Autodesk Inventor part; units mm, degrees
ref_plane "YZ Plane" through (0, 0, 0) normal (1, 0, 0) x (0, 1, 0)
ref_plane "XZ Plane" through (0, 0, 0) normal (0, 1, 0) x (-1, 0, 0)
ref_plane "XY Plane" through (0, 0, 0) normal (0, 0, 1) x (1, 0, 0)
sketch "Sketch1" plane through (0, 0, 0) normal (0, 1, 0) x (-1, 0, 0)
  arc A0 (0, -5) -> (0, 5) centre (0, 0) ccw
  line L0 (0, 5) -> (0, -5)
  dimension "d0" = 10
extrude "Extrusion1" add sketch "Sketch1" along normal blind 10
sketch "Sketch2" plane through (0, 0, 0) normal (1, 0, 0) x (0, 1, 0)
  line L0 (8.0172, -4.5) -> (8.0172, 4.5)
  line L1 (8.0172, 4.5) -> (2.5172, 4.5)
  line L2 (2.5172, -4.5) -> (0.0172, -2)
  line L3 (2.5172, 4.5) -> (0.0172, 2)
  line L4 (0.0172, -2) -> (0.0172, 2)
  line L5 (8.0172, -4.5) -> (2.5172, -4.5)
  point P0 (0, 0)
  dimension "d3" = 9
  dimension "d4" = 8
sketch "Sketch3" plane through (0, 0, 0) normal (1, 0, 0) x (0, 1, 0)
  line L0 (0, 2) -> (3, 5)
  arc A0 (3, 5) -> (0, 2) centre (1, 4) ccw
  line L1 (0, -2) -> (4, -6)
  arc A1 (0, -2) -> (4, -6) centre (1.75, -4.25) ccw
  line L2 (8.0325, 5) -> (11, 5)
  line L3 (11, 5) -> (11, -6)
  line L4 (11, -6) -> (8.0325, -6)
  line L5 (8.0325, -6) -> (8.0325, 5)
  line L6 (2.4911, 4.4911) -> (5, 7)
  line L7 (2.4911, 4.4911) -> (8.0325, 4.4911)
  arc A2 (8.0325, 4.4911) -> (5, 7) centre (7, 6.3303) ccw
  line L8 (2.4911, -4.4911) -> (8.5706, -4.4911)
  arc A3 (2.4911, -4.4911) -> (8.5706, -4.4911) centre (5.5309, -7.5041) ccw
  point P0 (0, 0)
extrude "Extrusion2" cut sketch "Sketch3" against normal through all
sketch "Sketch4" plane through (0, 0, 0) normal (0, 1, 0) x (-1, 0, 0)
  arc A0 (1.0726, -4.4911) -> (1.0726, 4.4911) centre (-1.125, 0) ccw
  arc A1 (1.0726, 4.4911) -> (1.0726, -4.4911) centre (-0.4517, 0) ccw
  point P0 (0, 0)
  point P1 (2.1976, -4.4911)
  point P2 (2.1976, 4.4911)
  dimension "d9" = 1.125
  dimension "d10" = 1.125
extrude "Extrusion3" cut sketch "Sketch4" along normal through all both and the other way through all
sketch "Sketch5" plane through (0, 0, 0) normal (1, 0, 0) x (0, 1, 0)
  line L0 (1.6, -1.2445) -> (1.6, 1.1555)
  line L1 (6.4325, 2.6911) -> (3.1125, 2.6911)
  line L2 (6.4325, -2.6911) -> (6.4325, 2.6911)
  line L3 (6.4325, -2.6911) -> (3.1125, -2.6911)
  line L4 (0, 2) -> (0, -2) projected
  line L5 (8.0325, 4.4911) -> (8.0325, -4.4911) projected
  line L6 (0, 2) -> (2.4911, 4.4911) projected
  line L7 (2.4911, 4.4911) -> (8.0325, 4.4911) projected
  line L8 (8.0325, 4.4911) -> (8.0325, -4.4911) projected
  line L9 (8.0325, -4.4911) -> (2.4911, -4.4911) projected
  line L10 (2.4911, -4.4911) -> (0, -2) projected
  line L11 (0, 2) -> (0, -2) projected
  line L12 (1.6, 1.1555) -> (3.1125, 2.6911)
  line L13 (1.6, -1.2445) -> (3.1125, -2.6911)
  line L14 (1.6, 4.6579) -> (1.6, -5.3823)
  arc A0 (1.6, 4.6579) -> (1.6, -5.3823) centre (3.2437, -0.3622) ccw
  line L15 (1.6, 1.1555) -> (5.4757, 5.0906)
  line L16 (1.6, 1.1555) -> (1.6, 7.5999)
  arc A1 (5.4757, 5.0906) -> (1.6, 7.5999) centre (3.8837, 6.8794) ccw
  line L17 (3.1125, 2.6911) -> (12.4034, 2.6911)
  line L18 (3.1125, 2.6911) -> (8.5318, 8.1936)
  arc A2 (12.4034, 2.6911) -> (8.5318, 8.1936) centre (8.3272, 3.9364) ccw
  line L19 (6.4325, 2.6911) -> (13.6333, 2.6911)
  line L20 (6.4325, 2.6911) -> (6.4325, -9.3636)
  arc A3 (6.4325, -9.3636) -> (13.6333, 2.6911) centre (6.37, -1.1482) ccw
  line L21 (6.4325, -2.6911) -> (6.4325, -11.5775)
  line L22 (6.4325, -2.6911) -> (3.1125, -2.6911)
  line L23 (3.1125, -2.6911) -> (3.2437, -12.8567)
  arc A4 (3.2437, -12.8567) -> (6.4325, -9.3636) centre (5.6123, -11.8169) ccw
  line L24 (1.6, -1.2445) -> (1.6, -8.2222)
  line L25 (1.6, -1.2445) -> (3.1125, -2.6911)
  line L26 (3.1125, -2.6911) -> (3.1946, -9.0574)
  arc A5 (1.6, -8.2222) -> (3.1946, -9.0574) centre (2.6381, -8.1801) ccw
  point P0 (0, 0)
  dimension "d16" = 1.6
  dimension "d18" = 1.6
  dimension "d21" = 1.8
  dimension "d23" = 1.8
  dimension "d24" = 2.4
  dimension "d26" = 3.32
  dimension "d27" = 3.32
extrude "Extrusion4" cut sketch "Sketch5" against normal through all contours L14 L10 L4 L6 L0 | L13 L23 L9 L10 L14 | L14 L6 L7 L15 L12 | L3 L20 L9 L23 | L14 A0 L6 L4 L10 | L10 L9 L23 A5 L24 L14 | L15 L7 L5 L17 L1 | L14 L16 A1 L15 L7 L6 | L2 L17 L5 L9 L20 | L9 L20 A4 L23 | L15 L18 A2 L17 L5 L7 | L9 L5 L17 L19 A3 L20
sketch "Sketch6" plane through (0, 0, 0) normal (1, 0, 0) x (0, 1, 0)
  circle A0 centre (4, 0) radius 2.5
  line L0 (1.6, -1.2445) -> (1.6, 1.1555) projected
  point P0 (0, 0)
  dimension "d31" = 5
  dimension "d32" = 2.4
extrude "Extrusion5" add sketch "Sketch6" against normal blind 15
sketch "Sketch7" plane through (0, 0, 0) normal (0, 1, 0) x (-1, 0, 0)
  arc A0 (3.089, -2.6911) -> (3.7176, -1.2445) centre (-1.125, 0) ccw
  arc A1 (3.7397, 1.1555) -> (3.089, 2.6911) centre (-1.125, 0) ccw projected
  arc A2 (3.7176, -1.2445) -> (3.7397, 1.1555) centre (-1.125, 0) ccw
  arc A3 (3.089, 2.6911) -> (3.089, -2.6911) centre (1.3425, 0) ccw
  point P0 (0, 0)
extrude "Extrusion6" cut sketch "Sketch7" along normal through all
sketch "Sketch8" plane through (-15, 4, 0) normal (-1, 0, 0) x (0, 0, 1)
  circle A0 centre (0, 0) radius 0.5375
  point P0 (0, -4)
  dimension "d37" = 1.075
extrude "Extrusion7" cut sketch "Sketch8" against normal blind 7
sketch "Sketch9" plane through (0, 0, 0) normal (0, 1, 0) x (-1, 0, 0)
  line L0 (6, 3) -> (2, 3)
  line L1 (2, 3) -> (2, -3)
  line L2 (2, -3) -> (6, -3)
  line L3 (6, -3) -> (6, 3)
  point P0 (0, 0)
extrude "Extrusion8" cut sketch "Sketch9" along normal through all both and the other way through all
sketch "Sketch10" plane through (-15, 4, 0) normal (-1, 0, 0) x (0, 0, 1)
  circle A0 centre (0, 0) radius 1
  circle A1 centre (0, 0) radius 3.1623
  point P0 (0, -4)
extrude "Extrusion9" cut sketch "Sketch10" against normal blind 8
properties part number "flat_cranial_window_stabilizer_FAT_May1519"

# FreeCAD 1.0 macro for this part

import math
import FreeCAD as App
import Part
import Sketcher

V = App.Vector
Q = App.Units.Quantity

doc = App.newDocument("Part")
body = doc.addObject("PartDesign::Body", "Body")

# Sketch on XZ plane
sketch1 = body.newObject("Sketcher::SketchObject", "Sketch")
sketch1.AttachmentSupport = (doc.getObject("XZ_Plane"), [""])
sketch1.MapMode = "FlatFace"
sketch1.addGeometry(Part.LineSegment(V(0, 5, 0), V(0, -5, 0)), False)
sketch1.addGeometry(Part.ArcOfCircle(Part.Circle(V(0, 0, 0), V(0, 0, 1), 5), math.radians(90), math.radians(270)), False)
sketch1.addConstraint(Sketcher.Constraint("Coincident", 0, 1, 1, 1))
sketch1.addConstraint(Sketcher.Constraint("Coincident", 1, 2, 0, 2))
sketch1.addConstraint(Sketcher.Constraint("Vertical", 0))
sketch1.addConstraint(Sketcher.Constraint("Coincident", 1, 3, -1, 1))
sketch1.addConstraint(Sketcher.Constraint("PointOnObject", 0, 1, -2))
sketch1.addConstraint(Sketcher.Constraint("Radius", 1, Q("5 mm")))
pad1 = body.newObject("PartDesign::Pad", "Pad")
pad1.Profile = sketch1
pad1.Length = 10
pad1.Reversed = True

# Sketch on YZ plane
sketch2 = body.newObject("Sketcher::SketchObject", "Sketch001")
sketch2.AttachmentSupport = (doc.getObject("YZ_Plane"), [""])
sketch2.MapMode = "FlatFace"
sketch2.addGeometry(Part.ArcOfCircle(Part.Circle(V(1, 4, 0), V(0, 0, 1), 2.2), math.radians(27), math.radians(243)), False)
sketch2.addGeometry(Part.LineSegment(V(0, 2, 0), V(2.5, 4.5, 0)), False)
sketch2.addGeometry(Part.LineSegment(V(2.5, 4.5, 0), V(8, 4.5, 0)), False)
sketch2.addGeometry(Part.LineSegment(V(8, 4.5, 0), V(8, -4.5, 0)), False)
sketch2.addGeometry(Part.LineSegment(V(8, -4.5, 0), V(2.5, -4.5, 0)), False)
sketch2.addGeometry(Part.LineSegment(V(2.5, -4.5, 0), V(0, -2, 0)), False)
sketch2.addGeometry(Part.ArcOfCircle(Part.Circle(V(1.8, -4.2, 0), V(0, 0, 1), 2.9), math.radians(128), math.radians(260)), False)
sketch2.addGeometry(Part.ArcOfCircle(Part.Circle(V(5.5, -7.5, 0), V(0, 0, 1), 4.3), math.radians(174), math.radians(381)), False)
sketch2.addGeometry(Part.LineSegment(V(9.5, -6, 0), V(11, -6, 0)), False)
sketch2.addGeometry(Part.LineSegment(V(11, -6, 0), V(11, 5, 0)), False)
sketch2.addGeometry(Part.LineSegment(V(11, 5, 0), V(8.6, 5, 0)), False)
sketch2.addGeometry(Part.ArcOfCircle(Part.Circle(V(7, 6.3, 0), V(0, 0, 1), 2.1), math.radians(-39), math.radians(161)), False)
sketch2.addGeometry(Part.LineSegment(V(5, 7, 0), V(3, 5, 0)), False)
sketch2.addConstraint(Sketcher.Constraint("Coincident", 0, 2, 1, 1))
sketch2.addConstraint(Sketcher.Constraint("Coincident", 1, 2, 2, 1))
sketch2.addConstraint(Sketcher.Constraint("Coincident", 2, 2, 3, 1))
sketch2.addConstraint(Sketcher.Constraint("Coincident", 3, 2, 4, 1))
sketch2.addConstraint(Sketcher.Constraint("Coincident", 4, 2, 5, 1))
sketch2.addConstraint(Sketcher.Constraint("Coincident", 5, 2, 6, 1))
sketch2.addConstraint(Sketcher.Constraint("Coincident", 6, 2, 7, 1))
sketch2.addConstraint(Sketcher.Constraint("Coincident", 7, 2, 8, 1))
sketch2.addConstraint(Sketcher.Constraint("Coincident", 8, 2, 9, 1))
sketch2.addConstraint(Sketcher.Constraint("Coincident", 9, 2, 10, 1))
sketch2.addConstraint(Sketcher.Constraint("Coincident", 10, 2, 11, 1))
sketch2.addConstraint(Sketcher.Constraint("Coincident", 11, 2, 12, 1))
sketch2.addConstraint(Sketcher.Constraint("Coincident", 12, 2, 0, 1))
sketch2.addConstraint(Sketcher.Constraint("Horizontal", 2))
sketch2.addConstraint(Sketcher.Constraint("Vertical", 3))
sketch2.addConstraint(Sketcher.Constraint("Horizontal", 4))
sketch2.addConstraint(Sketcher.Constraint("Horizontal", 8))
sketch2.addConstraint(Sketcher.Constraint("Vertical", 9))
sketch2.addConstraint(Sketcher.Constraint("Horizontal", 10))
sketch2.addConstraint(Sketcher.Constraint("Symmetric", 0, 2, 5, 2, -1, 1))
sketch2.addConstraint(Sketcher.Constraint("Symmetric", 1, 2, 4, 2, -1))
sketch2.addConstraint(Sketcher.Constraint("PointOnObject", 0, 2, -2))
sketch2.addConstraint(Sketcher.Constraint("Perpendicular", 1, 5))
sketch2.addConstraint(Sketcher.Constraint("Perpendicular", 5, 12))
sketch2.addConstraint(Sketcher.Constraint("Horizontal", 10, 2, 12, 2))
sketch2.addConstraint(Sketcher.Constraint("DistanceY", 9, 1, 9, 2, Q("11 mm")))
sketch2.addConstraint(Sketcher.Constraint("Radius", 7, Q("4.28 mm")))
sketch2.addConstraint(Sketcher.Constraint("DistanceX", -1, 1, 0, 3, Q("1 mm")))
sketch2.addConstraint(Sketcher.Constraint("DistanceY", -1, 1, 0, 3, Q("4 mm")))
sketch2.addConstraint(Sketcher.Constraint("DistanceX", -1, 1, 11, 3, Q("7 mm")))
sketch2.addConstraint(Sketcher.Constraint("DistanceY", -1, 1, 0, 2, Q("2 mm")))
sketch2.addConstraint(Sketcher.Constraint("DistanceY", 7, 2, -1, 1, Q("6 mm")))
sketch2.addConstraint(Sketcher.Constraint("DistanceX", -1, 1, 8, 2, Q("11 mm")))
sketch2.addConstraint(Sketcher.Constraint("DistanceX", -1, 1, 11, 2, Q("5 mm")))
sketch2.addConstraint(Sketcher.Constraint("Radius", 6, Q("2.8504 mm")))
sketch2.addConstraint(Sketcher.Constraint("Radius", 11, Q("2.1092 mm")))
sketch2.addConstraint(Sketcher.Constraint("DistanceX", -1, 1, 6, 3, Q("1.75 mm")))
sketch2.addConstraint(Sketcher.Constraint("Distance", 1, Q("3.523 mm")))
sketch2.addConstraint(Sketcher.Constraint("DistanceX", 2, 1, 2, 2, Q("5.5414 mm")))
sketch2.addConstraint(Sketcher.Constraint("DistanceX", 8, 1, 8, 2, Q("1.4622 mm")))
sketch2.addConstraint(Sketcher.Constraint("DistanceX", -1, 1, 7, 3, Q("5.531 mm")))
pocket1 = body.newObject("PartDesign::Pocket", "Pocket")
pocket1.Profile = sketch2
pocket1.Type = "ThroughAll"

# Sketch on XZ plane
sketch3 = body.newObject("Sketcher::SketchObject", "Sketch002")
sketch3.AttachmentSupport = (doc.getObject("XZ_Plane"), [""])
sketch3.MapMode = "FlatFace"
sketch3.addGeometry(Part.ArcOfCircle(Part.Circle(V(0.5, 0, 0), V(0, 0, 1), 4.7), math.radians(-109), math.radians(109)), False)
sketch3.addGeometry(Part.ArcOfCircle(Part.Circle(V(1.1, 0, 0), V(0, 0, 1), 5), math.radians(116), math.radians(244)), False)
sketch3.addConstraint(Sketcher.Constraint("Coincident", 0, 1, 1, 2))
sketch3.addConstraint(Sketcher.Constraint("Coincident", 1, 1, 0, 2))
sketch3.addConstraint(Sketcher.Constraint("Symmetric", 0, 1, 1, 1, -1))
sketch3.addConstraint(Sketcher.Constraint("Radius", 1, Q("5 mm")))
sketch3.addConstraint(Sketcher.Constraint("DistanceX", -1, 1, 1, 3, Q("1.125 mm")))
sketch3.addConstraint(Sketcher.Constraint("Radius", 0, Q("4.7427 mm")))
sketch3.addConstraint(Sketcher.Constraint("DistanceY", 0, 1, -1, 1, Q("4.491 mm")))
pocket2 = body.newObject("PartDesign::Pocket", "Pocket001")
pocket2.Profile = sketch3
pocket2.Type = "ThroughAll"

# Sketch on YZ plane
sketch4 = body.newObject("Sketcher::SketchObject", "Sketch003")
sketch4.AttachmentSupport = (doc.getObject("YZ_Plane"), [""])
sketch4.MapMode = "FlatFace"
sketch4.addGeometry(Part.ArcOfCircle(Part.Circle(V(3.2, -0.4, 0), V(0, 0, 1), 5.3), math.radians(108), math.radians(252)), False)
sketch4.addGeometry(Part.LineSegment(V(1.6, -5.4, 0), V(1.6, -8.2, 0)), False)
sketch4.addGeometry(Part.ArcOfCircle(Part.Circle(V(2.6, -8.2, 0), V(0, 0, 1), 1), math.radians(-178), math.radians(-58)), False)
sketch4.addGeometry(Part.LineSegment(V(3.2, -9.1, 0), V(3.2, -12.9, 0)), False)
sketch4.addGeometry(Part.ArcOfCircle(Part.Circle(V(5.6, -11.8, 0), V(0, 0, 1), 2.6), math.radians(-156), math.radians(72)), False)
sketch4.addGeometry(Part.ArcOfCircle(Part.Circle(V(6.4, -1.1, 0), V(0, 0, 1), 8.2), math.radians(-90), math.radians(28)), False)
sketch4.addGeometry(Part.LineSegment(V(13.6, 2.7, 0), V(12.4, 2.7, 0)), False)
sketch4.addGeometry(Part.ArcOfCircle(Part.Circle(V(8.3, 3.9, 0), V(0, 0, 1), 4.3), math.radians(-17), math.radians(87)), False)
sketch4.addGeometry(Part.LineSegment(V(8.5, 8.2, 0), V(5.5, 5.1, 0)), False)
sketch4.addGeometry(Part.ArcOfCircle(Part.Circle(V(3.9, 6.9, 0), V(0, 0, 1), 2.4), math.radians(-48), math.radians(162)), False)
sketch4.addGeometry(Part.LineSegment(V(1.6, 7.6, 0), V(1.6, 4.7, 0)), False)
sketch4.addGeometry(Part.LineSegment(V(1.6, -1.2, 0), V(1.6, 1.2, 0)), False)
sketch4.addGeometry(Part.LineSegment(V(1.6, 1.2, 0), V(3.1, 2.7, 0)), False)
sketch4.addGeometry(Part.LineSegment(V(3.1, 2.7, 0), V(6.4, 2.7, 0)), False)
sketch4.addGeometry(Part.LineSegment(V(6.4, 2.7, 0), V(6.4, -2.7, 0)), False)
sketch4.addGeometry(Part.LineSegment(V(6.4, -2.7, 0), V(3.1, -2.7, 0)), False)
sketch4.addGeometry(Part.LineSegment(V(3.1, -2.7, 0), V(1.6, -1.2, 0)), False)
sketch4.addConstraint(Sketcher.Constraint("Coincident", 0, 2, 1, 1))
sketch4.addConstraint(Sketcher.Constraint("Coincident", 1, 2, 2, 1))
sketch4.addConstraint(Sketcher.Constraint("Coincident", 2, 2, 3, 1))
sketch4.addConstraint(Sketcher.Constraint("Coincident", 3, 2, 4, 1))
sketch4.addConstraint(Sketcher.Constraint("Coincident", 4, 2, 5, 1))
sketch4.addConstraint(Sketcher.Constraint("Coincident", 5, 2, 6, 1))
sketch4.addConstraint(Sketcher.Constraint("Coincident", 6, 2, 7, 1))
sketch4.addConstraint(Sketcher.Constraint("Coincident", 7, 2, 8, 1))
sketch4.addConstraint(Sketcher.Constraint("Coincident", 8, 2, 9, 1))
sketch4.addConstraint(Sketcher.Constraint("Coincident", 9, 2, 10, 1))
sketch4.addConstraint(Sketcher.Constraint("Coincident", 10, 2, 0, 1))
sketch4.addConstraint(Sketcher.Constraint("Coincident", 11, 2, 12, 1))
sketch4.addConstraint(Sketcher.Constraint("Coincident", 12, 2, 13, 1))
sketch4.addConstraint(Sketcher.Constraint("Coincident", 13, 2, 14, 1))
sketch4.addConstraint(Sketcher.Constraint("Coincident", 14, 2, 15, 1))
sketch4.addConstraint(Sketcher.Constraint("Coincident", 15, 2, 16, 1))
sketch4.addConstraint(Sketcher.Constraint("Coincident", 16, 2, 11, 1))
sketch4.addConstraint(Sketcher.Constraint("Vertical", 1))
sketch4.addConstraint(Sketcher.Constraint("Horizontal", 6))
sketch4.addConstraint(Sketcher.Constraint("Vertical", 10))
sketch4.addConstraint(Sketcher.Constraint("Vertical", 11))
sketch4.addConstraint(Sketcher.Constraint("Horizontal", 13))
sketch4.addConstraint(Sketcher.Constraint("Vertical", 14))
sketch4.addConstraint(Sketcher.Constraint("Horizontal", 15))
sketch4.addConstraint(Sketcher.Constraint("Symmetric", 12, 2, 15, 2, -1))
sketch4.addConstraint(Sketcher.Constraint("Parallel", 8, 12))
sketch4.addConstraint(Sketcher.Constraint("Horizontal", 6, 2, 12, 2))
sketch4.addConstraint(Sketcher.Constraint("Vertical", 0, 3, 3, 2))
sketch4.addConstraint(Sketcher.Constraint("Vertical", 1, 2, 9, 2))
sketch4.addConstraint(Sketcher.Constraint("Vertical", 10, 2, 11, 2))
sketch4.addConstraint(Sketcher.Constraint("Vertical", 4, 2, 13, 2))
sketch4.addConstraint(Sketcher.Constraint("DistanceY", 11, 1, 11, 2, Q("2.4 mm")))
sketch4.addConstraint(Sketcher.Constraint("DistanceX", 13, 1, 13, 2, Q("3.32 mm")))
sketch4.addConstraint(Sketcher.Constraint("DistanceX", -1, 1, 0, 2, Q("1.6 mm")))
sketch4.addConstraint(Sketcher.Constraint("Radius", 2, Q("1.039 mm")))
sketch4.addConstraint(Sketcher.Constraint("DistanceX", 6, 2, 6, 1, Q("1.23 mm")))
sketch4.addConstraint(Sketcher.Constraint("DistanceY", 1, 2, 1, 1, Q("2.84 mm")))
sketch4.addConstraint(Sketcher.Constraint("DistanceY", -1, 1, 9, 2, Q("7.6 mm")))
sketch4.addConstraint(Sketcher.Constraint("Angle", 3, Q("-89.2606 deg")))
sketch4.addConstraint(Sketcher.Constraint("Radius", 0, Q("5.2823 mm")))
sketch4.addConstraint(Sketcher.Constraint("Radius", 4, Q("2.5868 mm")))
sketch4.addConstraint(Sketcher.Constraint("Radius", 5, Q("8.2156 mm")))
sketch4.addConstraint(Sketcher.Constraint("Radius", 7, Q("4.2622 mm")))
sketch4.addConstraint(Sketcher.Constraint("Radius", 9, Q("2.3946 mm")))
sketch4.addConstraint(Sketcher.Constraint("DistanceY", 12, 2, 8, 2, Q("2.3995 mm")))
sketch4.addConstraint(Sketcher.Constraint("DistanceY", 10, 2, 10, 1, Q("2.942 mm")))
sketch4.addConstraint(Sketcher.Constraint("DistanceY", 2, 3, -1, 1, Q("8.18 mm")))
sketch4.addConstraint(Sketcher.Constraint("DistanceX", -1, 1, 5, 3, Q("6.37 mm")))
sketch4.addConstraint(Sketcher.Constraint("DistanceX", 0, 3, 9, 3, Q("0.64 mm")))
sketch4.addConstraint(Sketcher.Constraint("DistanceY", 0, 2, 0, 3, Q("5.02 mm")))
sketch4.addConstraint(Sketcher.Constraint("Distance", 16, Q("2.093 mm")))
sketch4.addConstraint(Sketcher.Constraint("DistanceY", 14, 2, 14, 1, Q("5.3822 mm")))
sketch4.addConstraint(Sketcher.Constraint("DistanceY", 4, 3, -1, 1, Q("11.817 mm")))
sketch4.addConstraint(Sketcher.Constraint("DistanceY", 5, 3, 0, 3, Q("0.786 mm")))
sketch4.addConstraint(Sketcher.Constraint("DistanceX", 2, 3, 7, 3, Q("5.689 mm")))
sketch4.addConstraint(Sketcher.Constraint("DistanceX", 4, 3, 7, 3, Q("2.715 mm")))
pocket3 = body.newObject("PartDesign::Pocket", "Pocket002")
pocket3.Profile = sketch4
pocket3.Type = "ThroughAll"

# Sketch on YZ plane
sketch5 = body.newObject("Sketcher::SketchObject", "Sketch004")
sketch5.AttachmentSupport = (doc.getObject("YZ_Plane"), [""])
sketch5.MapMode = "FlatFace"
sketch5.addGeometry(Part.Circle(V(4, 0, 0), V(0, 0, 1), 2.5), False)
sketch5.addConstraint(Sketcher.Constraint("PointOnObject", 0, 3, -1))
sketch5.addConstraint(Sketcher.Constraint("Diameter", 0, Q("5 mm")))
sketch5.addConstraint(Sketcher.Constraint("DistanceX", -1, 1, 0, 3, Q("4 mm")))
pad2 = body.newObject("PartDesign::Pad", "Pad001")
pad2.Profile = sketch5
pad2.Length = 15
pad2.Reversed = True

# Sketch on XZ plane
sketch6 = body.newObject("Sketcher::SketchObject", "Sketch005")
sketch6.AttachmentSupport = (doc.getObject("XZ_Plane"), [""])
sketch6.MapMode = "FlatFace"
sketch6.addGeometry(Part.ArcOfCircle(Part.Circle(V(-1.3, 0, 0), V(0, 0, 1), 3.2), math.radians(-123), math.radians(123)), False)
sketch6.addGeometry(Part.ArcOfCircle(Part.Circle(V(1.1, 0, 0), V(0, 0, 1), 5), math.radians(-165.59), math.radians(-147.44)), False)
sketch6.addGeometry(Part.ArcOfCircle(Part.Circle(V(1.1, 0, 0), V(0, 0, 1), 5), math.radians(167), math.radians(194)), False)
sketch6.addGeometry(Part.ArcOfCircle(Part.Circle(V(1.1, 0, 0), V(0, 0, 1), 5), math.radians(147.43), math.radians(166.64)), False)
sketch6.addConstraint(Sketcher.Constraint("Coincident", 0, 1, 1, 2))
sketch6.addConstraint(Sketcher.Constraint("Tangent", 1, 1, 2, 2))
sketch6.addConstraint(Sketcher.Constraint("Tangent", 2, 1, 3, 2))
sketch6.addConstraint(Sketcher.Constraint("Coincident", 3, 1, 0, 2))
sketch6.addConstraint(Sketcher.Constraint("Symmetric", 0, 1, 3, 1, -1))
sketch6.addConstraint(Sketcher.Constraint("Radius", 1, Q("4.999 mm")))
sketch6.addConstraint(Sketcher.Constraint("Radius", 0, Q("3.2082 mm")))
sketch6.addConstraint(Sketcher.Constraint("Radius", 2, Q("5.0015 mm")))
sketch6.addConstraint(Sketcher.Constraint("Radius", 3, Q("4.9977 mm")))
sketch6.addConstraint(Sketcher.Constraint("DistanceY", 1, 1, 2, 1, Q("2.4 mm")))
sketch6.addConstraint(Sketcher.Constraint("DistanceX", -1, 1, 1, 3, Q("1.124 mm")))
sketch6.addConstraint(Sketcher.Constraint("DistanceX", 0, 1, -1, 1, Q("3.089 mm")))
sketch6.addConstraint(Sketcher.Constraint("DistanceX", 1, 1, 0, 3, Q("2.375 mm")))
pocket4 = body.newObject("PartDesign::Pocket", "Pocket003")
pocket4.Profile = sketch6
pocket4.Type = "ThroughAll"

# Sketch on YZ plane
sketch7 = body.newObject("Sketcher::SketchObject", "Sketch006")
sketch7.AttachmentSupport = (doc.getObject("YZ_Plane"), [""])
sketch7.MapMode = "FlatFace"
sketch7.AttachmentOffset = App.Placement(V(0, 0, -15), App.Rotation())
sketch7.addGeometry(Part.Circle(V(4, 0, 0), V(0, 0, 1), 0.5), False)
sketch7.addConstraint(Sketcher.Constraint("PointOnObject", 0, 3, -1))
sketch7.addConstraint(Sketcher.Constraint("Diameter", 0, Q("1.075 mm")))
sketch7.addConstraint(Sketcher.Constraint("DistanceX", -1, 1, 0, 3, Q("4 mm")))
pocket5 = body.newObject("PartDesign::Pocket", "Pocket004")
pocket5.Profile = sketch7
pocket5.Length = 7
pocket5.Reversed = True

# Sketch on XZ plane
sketch8 = body.newObject("Sketcher::SketchObject", "Sketch007")
sketch8.AttachmentSupport = (doc.getObject("XZ_Plane"), [""])
sketch8.MapMode = "FlatFace"
sketch8.addGeometry(Part.LineSegment(V(-6, -3, 0), V(-6, 3, 0)), False)
sketch8.addGeometry(Part.LineSegment(V(-6, 3, 0), V(-2, 3, 0)), False)
sketch8.addGeometry(Part.LineSegment(V(-2, 3, 0), V(-2, -3, 0)), False)
sketch8.addGeometry(Part.LineSegment(V(-2, -3, 0), V(-6, -3, 0)), False)
sketch8.addConstraint(Sketcher.Constraint("Coincident", 0, 2, 1, 1))
sketch8.addConstraint(Sketcher.Constraint("Coincident", 1, 2, 2, 1))
sketch8.addConstraint(Sketcher.Constraint("Coincident", 2, 2, 3, 1))
sketch8.addConstraint(Sketcher.Constraint("Coincident", 3, 2, 0, 1))
sketch8.addConstraint(Sketcher.Constraint("Vertical", 0))
sketch8.addConstraint(Sketcher.Constraint("Horizontal", 1))
sketch8.addConstraint(Sketcher.Constraint("Vertical", 2))
sketch8.addConstraint(Sketcher.Constraint("Horizontal", 3))
sketch8.addConstraint(Sketcher.Constraint("DistanceX", 1, 1, 1, 2, Q("4 mm")))
sketch8.addConstraint(Sketcher.Constraint("DistanceY", 0, 1, 0, 2, Q("6 mm")))
sketch8.addConstraint(Sketcher.Constraint("DistanceX", 0, 2, -1, 1, Q("6 mm")))
sketch8.addConstraint(Sketcher.Constraint("DistanceY", -1, 1, 0, 2, Q("3 mm")))
pocket6 = body.newObject("PartDesign::Pocket", "Pocket005")
pocket6.Profile = sketch8
pocket6.Type = "ThroughAll"

# Sketch on YZ plane
sketch9 = body.newObject("Sketcher::SketchObject", "Sketch008")
sketch9.AttachmentSupport = (doc.getObject("YZ_Plane"), [""])
sketch9.MapMode = "FlatFace"
sketch9.AttachmentOffset = App.Placement(V(0, 0, -15), App.Rotation())
sketch9.addGeometry(Part.Circle(V(4, 0, 0), V(0, 0, 1), 3.2), False)
sketch9.addGeometry(Part.Circle(V(4, 0, 0), V(0, 0, 1), 1), False)
sketch9.addConstraint(Sketcher.Constraint("Coincident", 1, 3, 0, 3))
sketch9.addConstraint(Sketcher.Constraint("PointOnObject", 0, 3, -1))
sketch9.addConstraint(Sketcher.Constraint("Diameter", 1, Q("2 mm")))
sketch9.addConstraint(Sketcher.Constraint("DistanceX", -1, 1, 0, 3, Q("4 mm")))
sketch9.addConstraint(Sketcher.Constraint("Diameter", 0, Q("6.3246 mm")))
pocket7 = body.newObject("PartDesign::Pocket", "Pocket006")
pocket7.Profile = sketch9
pocket7.Length = 8
pocket7.Reversed = True

doc.recompute()
